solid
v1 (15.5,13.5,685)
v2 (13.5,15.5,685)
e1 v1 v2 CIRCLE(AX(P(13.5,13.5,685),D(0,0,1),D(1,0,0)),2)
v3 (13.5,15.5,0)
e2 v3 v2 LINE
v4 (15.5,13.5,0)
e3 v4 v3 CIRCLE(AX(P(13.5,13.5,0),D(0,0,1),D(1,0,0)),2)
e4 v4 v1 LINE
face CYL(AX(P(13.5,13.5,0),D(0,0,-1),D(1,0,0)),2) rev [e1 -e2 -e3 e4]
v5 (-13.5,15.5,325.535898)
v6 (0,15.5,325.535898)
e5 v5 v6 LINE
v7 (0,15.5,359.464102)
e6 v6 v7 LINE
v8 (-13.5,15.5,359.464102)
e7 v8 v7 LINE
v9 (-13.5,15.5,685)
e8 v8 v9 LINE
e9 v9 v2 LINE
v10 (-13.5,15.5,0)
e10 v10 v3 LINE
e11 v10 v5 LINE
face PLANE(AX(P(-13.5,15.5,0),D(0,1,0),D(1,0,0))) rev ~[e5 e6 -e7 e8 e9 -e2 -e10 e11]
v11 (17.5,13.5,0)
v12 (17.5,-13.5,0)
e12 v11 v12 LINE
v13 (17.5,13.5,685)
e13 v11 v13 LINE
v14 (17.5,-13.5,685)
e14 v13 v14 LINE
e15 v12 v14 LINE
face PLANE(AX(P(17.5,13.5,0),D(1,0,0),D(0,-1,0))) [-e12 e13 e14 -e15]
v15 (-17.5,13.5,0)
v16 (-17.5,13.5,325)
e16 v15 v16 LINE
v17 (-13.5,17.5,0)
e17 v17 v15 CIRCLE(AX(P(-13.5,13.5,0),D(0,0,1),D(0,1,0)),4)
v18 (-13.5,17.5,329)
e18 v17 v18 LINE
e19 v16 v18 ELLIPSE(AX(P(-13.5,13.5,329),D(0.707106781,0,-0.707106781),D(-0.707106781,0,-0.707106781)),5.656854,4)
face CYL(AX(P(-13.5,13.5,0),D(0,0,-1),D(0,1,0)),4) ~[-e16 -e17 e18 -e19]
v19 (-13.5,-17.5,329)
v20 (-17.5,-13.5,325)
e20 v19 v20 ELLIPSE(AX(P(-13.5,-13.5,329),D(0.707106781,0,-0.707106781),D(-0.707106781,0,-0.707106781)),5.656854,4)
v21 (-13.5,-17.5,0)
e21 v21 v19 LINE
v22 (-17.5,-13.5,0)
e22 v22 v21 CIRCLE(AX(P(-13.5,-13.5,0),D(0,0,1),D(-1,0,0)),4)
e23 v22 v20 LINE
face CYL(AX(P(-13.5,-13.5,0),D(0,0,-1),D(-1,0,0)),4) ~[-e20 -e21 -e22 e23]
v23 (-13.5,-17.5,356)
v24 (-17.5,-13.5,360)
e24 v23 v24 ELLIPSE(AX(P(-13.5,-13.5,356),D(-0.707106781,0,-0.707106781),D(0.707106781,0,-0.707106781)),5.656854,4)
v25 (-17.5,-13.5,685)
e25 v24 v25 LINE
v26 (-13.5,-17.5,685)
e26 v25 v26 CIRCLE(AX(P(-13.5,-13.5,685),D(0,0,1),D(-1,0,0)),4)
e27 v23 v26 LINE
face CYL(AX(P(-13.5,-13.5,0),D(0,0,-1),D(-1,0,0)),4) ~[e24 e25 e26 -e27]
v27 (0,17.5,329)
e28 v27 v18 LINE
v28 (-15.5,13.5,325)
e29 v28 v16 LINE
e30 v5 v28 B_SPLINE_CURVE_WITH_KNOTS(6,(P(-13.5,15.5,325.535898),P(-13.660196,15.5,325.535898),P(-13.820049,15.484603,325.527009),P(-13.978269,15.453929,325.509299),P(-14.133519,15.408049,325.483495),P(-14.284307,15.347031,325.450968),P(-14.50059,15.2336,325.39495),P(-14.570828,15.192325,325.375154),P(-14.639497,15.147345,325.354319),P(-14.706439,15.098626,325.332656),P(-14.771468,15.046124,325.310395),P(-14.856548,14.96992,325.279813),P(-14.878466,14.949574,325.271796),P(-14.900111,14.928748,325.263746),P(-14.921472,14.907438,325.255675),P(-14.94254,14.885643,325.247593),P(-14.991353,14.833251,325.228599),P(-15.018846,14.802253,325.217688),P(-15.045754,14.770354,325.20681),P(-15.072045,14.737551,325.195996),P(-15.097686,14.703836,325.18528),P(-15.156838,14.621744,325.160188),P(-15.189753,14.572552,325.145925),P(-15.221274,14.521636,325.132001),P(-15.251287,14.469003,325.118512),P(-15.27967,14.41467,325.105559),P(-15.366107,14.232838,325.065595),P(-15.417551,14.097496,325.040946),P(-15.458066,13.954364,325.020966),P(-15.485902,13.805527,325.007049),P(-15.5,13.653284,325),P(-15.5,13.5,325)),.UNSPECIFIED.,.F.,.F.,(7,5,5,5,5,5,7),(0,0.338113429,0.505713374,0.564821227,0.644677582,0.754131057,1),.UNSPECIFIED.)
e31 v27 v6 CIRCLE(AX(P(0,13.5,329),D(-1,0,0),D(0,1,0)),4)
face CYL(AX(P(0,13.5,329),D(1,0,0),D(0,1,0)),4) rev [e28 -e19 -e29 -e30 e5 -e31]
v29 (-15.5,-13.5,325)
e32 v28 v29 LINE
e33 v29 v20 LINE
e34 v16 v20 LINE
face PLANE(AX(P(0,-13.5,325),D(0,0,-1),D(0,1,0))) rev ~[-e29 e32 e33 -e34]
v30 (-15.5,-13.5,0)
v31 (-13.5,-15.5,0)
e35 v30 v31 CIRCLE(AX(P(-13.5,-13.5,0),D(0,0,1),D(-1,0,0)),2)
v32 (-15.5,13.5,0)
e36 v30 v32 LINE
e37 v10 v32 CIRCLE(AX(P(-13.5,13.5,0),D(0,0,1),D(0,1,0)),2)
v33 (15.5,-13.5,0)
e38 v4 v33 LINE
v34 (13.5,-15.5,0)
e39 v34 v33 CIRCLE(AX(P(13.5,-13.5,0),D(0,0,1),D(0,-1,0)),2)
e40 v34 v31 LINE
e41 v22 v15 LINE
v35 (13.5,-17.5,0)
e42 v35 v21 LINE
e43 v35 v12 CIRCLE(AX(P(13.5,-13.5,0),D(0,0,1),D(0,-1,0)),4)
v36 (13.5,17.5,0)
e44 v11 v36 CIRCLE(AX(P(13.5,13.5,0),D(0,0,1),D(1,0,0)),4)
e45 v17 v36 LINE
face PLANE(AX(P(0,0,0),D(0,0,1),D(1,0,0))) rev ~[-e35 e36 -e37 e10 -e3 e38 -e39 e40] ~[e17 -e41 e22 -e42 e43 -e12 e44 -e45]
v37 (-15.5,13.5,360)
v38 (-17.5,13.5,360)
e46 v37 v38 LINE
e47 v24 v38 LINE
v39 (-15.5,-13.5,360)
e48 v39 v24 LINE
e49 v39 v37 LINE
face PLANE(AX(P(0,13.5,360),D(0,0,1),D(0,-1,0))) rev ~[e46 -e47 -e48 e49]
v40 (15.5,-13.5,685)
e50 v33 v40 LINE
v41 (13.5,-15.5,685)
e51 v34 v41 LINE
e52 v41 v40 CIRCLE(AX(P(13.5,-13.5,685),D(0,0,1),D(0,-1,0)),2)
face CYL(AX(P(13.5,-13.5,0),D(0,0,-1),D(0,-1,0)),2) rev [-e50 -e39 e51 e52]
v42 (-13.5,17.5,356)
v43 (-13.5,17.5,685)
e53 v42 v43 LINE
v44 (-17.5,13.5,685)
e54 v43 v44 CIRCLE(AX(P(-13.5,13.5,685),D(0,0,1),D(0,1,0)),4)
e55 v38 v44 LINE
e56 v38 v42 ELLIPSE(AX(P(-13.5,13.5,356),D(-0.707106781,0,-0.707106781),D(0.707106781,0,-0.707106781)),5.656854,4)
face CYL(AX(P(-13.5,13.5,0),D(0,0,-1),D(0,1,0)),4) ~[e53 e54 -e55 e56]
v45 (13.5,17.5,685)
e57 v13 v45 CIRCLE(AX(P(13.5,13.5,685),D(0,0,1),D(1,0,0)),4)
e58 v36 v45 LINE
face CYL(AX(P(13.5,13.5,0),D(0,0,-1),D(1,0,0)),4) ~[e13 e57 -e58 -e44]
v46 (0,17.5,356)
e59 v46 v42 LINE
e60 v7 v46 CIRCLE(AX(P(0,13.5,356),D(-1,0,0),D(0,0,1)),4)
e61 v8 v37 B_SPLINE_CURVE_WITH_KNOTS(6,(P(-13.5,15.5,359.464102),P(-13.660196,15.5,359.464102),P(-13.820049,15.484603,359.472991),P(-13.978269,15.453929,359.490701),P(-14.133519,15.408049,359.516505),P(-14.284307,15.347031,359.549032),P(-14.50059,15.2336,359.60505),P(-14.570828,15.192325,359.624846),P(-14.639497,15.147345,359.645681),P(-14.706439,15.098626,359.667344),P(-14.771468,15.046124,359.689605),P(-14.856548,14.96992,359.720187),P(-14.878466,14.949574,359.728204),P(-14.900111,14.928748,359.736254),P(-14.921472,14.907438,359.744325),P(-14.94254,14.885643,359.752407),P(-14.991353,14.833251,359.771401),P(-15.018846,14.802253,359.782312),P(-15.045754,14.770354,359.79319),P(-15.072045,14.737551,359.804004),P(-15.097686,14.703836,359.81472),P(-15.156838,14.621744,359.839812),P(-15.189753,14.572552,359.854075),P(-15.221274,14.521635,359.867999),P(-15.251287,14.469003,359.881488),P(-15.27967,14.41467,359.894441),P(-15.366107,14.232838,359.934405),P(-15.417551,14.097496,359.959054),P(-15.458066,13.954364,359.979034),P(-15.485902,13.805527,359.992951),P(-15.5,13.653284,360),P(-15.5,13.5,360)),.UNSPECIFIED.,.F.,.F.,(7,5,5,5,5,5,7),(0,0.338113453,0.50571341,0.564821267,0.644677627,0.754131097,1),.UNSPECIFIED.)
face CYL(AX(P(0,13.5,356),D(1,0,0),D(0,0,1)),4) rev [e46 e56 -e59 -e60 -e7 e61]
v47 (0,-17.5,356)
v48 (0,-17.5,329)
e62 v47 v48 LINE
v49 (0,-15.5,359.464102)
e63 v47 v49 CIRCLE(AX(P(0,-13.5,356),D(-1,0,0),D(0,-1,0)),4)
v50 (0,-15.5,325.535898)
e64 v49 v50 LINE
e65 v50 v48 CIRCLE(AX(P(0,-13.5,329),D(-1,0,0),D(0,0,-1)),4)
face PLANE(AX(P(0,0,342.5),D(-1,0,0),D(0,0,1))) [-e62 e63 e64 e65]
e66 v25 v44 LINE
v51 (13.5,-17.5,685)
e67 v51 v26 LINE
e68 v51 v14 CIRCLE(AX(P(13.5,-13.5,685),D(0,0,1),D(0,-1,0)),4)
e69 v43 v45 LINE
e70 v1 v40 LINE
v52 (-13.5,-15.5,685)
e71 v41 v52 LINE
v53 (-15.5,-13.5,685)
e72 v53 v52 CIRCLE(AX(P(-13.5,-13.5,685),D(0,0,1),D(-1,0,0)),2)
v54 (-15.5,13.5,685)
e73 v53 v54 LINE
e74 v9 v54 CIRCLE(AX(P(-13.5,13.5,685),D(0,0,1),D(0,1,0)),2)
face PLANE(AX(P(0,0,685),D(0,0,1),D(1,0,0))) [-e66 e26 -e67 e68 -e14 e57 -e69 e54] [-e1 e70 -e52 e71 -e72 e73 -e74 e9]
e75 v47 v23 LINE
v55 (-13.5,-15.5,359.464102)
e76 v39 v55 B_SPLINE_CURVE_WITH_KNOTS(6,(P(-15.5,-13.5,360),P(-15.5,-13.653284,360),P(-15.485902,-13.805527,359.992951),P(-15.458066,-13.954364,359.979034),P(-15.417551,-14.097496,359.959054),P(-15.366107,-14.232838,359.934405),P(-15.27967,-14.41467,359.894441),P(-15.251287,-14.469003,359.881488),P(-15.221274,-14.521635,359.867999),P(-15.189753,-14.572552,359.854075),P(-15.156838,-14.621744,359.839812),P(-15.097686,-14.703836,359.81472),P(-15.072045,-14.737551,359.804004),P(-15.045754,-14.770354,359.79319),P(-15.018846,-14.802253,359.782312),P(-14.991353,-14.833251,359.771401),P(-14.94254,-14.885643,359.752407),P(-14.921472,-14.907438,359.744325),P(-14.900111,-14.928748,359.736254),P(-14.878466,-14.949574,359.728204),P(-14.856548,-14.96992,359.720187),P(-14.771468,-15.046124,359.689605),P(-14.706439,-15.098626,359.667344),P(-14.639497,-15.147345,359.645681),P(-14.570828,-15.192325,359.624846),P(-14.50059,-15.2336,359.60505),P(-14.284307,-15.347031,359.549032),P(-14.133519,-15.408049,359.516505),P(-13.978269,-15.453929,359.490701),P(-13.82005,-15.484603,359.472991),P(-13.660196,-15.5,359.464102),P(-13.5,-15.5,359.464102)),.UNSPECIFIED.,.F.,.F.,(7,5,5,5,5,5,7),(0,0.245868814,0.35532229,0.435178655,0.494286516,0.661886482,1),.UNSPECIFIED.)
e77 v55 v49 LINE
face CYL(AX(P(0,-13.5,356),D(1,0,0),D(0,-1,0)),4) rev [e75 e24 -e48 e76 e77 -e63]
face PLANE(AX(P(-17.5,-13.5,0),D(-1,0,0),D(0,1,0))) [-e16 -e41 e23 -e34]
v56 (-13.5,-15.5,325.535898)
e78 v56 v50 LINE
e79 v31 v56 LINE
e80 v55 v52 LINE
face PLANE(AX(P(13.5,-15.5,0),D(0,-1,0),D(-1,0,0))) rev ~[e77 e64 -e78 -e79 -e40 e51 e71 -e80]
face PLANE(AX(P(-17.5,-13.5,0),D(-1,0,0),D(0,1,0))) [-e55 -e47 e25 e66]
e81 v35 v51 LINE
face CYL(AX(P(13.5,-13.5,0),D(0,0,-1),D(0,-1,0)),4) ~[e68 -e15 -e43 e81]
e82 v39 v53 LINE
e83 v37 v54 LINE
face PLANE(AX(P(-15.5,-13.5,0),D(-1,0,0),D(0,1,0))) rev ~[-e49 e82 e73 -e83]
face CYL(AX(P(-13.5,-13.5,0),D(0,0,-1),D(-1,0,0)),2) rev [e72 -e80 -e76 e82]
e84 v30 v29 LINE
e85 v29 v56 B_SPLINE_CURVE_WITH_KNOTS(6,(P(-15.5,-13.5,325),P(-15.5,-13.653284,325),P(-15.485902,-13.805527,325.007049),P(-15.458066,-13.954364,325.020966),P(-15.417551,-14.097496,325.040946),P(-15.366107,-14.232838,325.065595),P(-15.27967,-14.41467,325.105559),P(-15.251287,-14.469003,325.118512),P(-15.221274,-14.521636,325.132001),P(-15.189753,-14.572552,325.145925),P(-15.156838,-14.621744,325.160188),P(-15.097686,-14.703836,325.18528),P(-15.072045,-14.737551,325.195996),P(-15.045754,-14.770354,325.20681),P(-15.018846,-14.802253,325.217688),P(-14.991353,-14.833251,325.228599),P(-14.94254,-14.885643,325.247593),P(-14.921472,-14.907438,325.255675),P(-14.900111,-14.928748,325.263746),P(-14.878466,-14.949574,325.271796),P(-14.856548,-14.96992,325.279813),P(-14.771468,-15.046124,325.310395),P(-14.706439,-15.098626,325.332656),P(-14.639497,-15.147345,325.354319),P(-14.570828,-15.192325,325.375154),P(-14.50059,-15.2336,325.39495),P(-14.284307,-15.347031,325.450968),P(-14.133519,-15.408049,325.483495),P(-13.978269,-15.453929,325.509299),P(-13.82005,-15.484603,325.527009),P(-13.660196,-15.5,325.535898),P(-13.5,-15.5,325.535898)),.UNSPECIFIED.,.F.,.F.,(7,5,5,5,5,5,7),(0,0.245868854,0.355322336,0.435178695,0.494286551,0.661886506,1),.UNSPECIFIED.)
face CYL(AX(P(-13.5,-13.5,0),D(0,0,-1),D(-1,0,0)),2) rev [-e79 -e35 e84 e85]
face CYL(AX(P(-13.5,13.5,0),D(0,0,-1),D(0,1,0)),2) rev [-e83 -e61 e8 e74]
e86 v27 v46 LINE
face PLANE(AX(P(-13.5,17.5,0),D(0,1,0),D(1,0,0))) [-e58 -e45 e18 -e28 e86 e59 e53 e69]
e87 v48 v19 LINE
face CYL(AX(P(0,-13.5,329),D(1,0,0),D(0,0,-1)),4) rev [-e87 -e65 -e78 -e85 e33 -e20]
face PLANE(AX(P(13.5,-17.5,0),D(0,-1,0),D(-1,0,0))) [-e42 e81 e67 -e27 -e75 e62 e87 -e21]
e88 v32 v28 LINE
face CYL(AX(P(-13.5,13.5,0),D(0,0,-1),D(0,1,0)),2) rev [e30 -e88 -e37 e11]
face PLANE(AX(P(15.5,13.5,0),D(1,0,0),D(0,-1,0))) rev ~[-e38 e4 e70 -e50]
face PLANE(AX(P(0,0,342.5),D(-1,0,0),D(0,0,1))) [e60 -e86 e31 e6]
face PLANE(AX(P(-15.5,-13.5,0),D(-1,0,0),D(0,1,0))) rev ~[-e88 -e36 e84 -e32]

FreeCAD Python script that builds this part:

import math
import FreeCAD as App
import Part
import Sketcher
Q = App.Units.Quantity

doc = App.newDocument("Part")
body = doc.addObject("PartDesign::Body", "Body")

# Sketch on XY plane
sketch1 = body.newObject("Sketcher::SketchObject", "Sketch")
sketch1.AttachmentSupport = (doc.getObject("XY_Plane"), [""])
sketch1.MapMode = "FlatFace"
sketch1.addGeometry([
    Part.LineSegment(App.Vector(-17.5, 13.5, 0), App.Vector(-17.5, -13.5, 0)),  # 0
    Part.ArcOfCircle(Part.Circle(App.Vector(-13.5, -13.5, 0), App.Vector(0, 0, 1), 4), math.radians(180), math.radians(270)),  # 1
    Part.LineSegment(App.Vector(-13.5, -17.5, 0), App.Vector(13.5, -17.5, 0)),  # 2
    Part.ArcOfCircle(Part.Circle(App.Vector(13.5, -13.5, 0), App.Vector(0, 0, 1), 4), math.radians(-90), math.radians(0)),  # 3
    Part.LineSegment(App.Vector(17.5, -13.5, 0), App.Vector(17.5, 13.5, 0)),  # 4
    Part.ArcOfCircle(Part.Circle(App.Vector(13.5, 13.5, 0), App.Vector(0, 0, 1), 4), math.radians(0), math.radians(90)),  # 5
    Part.LineSegment(App.Vector(13.5, 17.5, 0), App.Vector(-13.5, 17.5, 0)),  # 6
    Part.ArcOfCircle(Part.Circle(App.Vector(-13.5, 13.5, 0), App.Vector(0, 0, 1), 4), math.radians(90), math.radians(180)),  # 7
    Part.ArcOfCircle(Part.Circle(App.Vector(-13.5, 13.5, 0), App.Vector(0, 0, 1), 2), math.radians(90), math.radians(180)),  # 8
    Part.LineSegment(App.Vector(-13.5, 15.5, 0), App.Vector(13.5, 15.5, 0)),  # 9
    Part.ArcOfCircle(Part.Circle(App.Vector(13.5, 13.5, 0), App.Vector(0, 0, 1), 2), math.radians(0), math.radians(90)),  # 10
    Part.LineSegment(App.Vector(15.5, 13.5, 0), App.Vector(15.5, -13.5, 0)),  # 11
    Part.ArcOfCircle(Part.Circle(App.Vector(13.5, -13.5, 0), App.Vector(0, 0, 1), 2), math.radians(-90), math.radians(0)),  # 12
    Part.LineSegment(App.Vector(13.5, -15.5, 0), App.Vector(-13.5, -15.5, 0)),  # 13
    Part.ArcOfCircle(Part.Circle(App.Vector(-13.5, -13.5, 0), App.Vector(0, 0, 1), 2), math.radians(180), math.radians(270)),  # 14
    Part.LineSegment(App.Vector(-15.5, -13.5, 0), App.Vector(-15.5, 13.5, 0)),  # 15
], False)
sketch1.addConstraint([
    Sketcher.Constraint("Tangent", 0, 2, 1, 1),
    Sketcher.Constraint("Tangent", 1, 2, 2, 1),
    Sketcher.Constraint("Tangent", 2, 2, 3, 1),
    Sketcher.Constraint("Tangent", 3, 2, 4, 1),
    Sketcher.Constraint("Tangent", 4, 2, 5, 1),
    Sketcher.Constraint("Tangent", 5, 2, 6, 1),
    Sketcher.Constraint("Tangent", 6, 2, 7, 1),
    Sketcher.Constraint("Tangent", 7, 2, 0, 1),
    Sketcher.Constraint("Tangent", 8, 1, 9, 1),
    Sketcher.Constraint("Tangent", 9, 2, 10, 2),
    Sketcher.Constraint("Tangent", 10, 1, 11, 1),
    Sketcher.Constraint("Tangent", 11, 2, 12, 2),
    Sketcher.Constraint("Tangent", 12, 1, 13, 1),
    Sketcher.Constraint("Tangent", 13, 2, 14, 2),
    Sketcher.Constraint("Tangent", 14, 1, 15, 1),
    Sketcher.Constraint("Tangent", 15, 2, 8, 2),
    Sketcher.Constraint("Vertical", 0),
    Sketcher.Constraint("Horizontal", 2),
    Sketcher.Constraint("Vertical", 4),
    Sketcher.Constraint("Horizontal", 6),
    Sketcher.Constraint("Horizontal", 9),
    Sketcher.Constraint("Vertical", 11),
    Sketcher.Constraint("Horizontal", 13),
    Sketcher.Constraint("Vertical", 15),
    Sketcher.Constraint("Coincident", 8, 3, 7, 3),
    Sketcher.Constraint("Coincident", 10, 3, 5, 3),
    Sketcher.Constraint("Coincident", 12, 3, 3, 3),
    Sketcher.Constraint("Equal", 1, 3),
    Sketcher.Constraint("Equal", 3, 5),
    Sketcher.Constraint("Equal", 5, 7),
    Sketcher.Constraint("Equal", 12, 14),
    Sketcher.Constraint("Symmetric", 1, 3, 5, 3, -1, 1),
    Sketcher.Constraint("Equal", 13, 0),
    Sketcher.Constraint("Radius", 1, Q("4 mm")),
    Sketcher.Constraint("Radius", 8, Q("2 mm")),
    Sketcher.Constraint("DistanceX", 0, 2, -1, 1, Q("17.5 mm")),
])
pad1 = body.newObject("PartDesign::Pad", "Pad")
pad1.Profile = sketch1
pad1.Length = 685

# Sketch on YZ plane
sketch2 = body.newObject("Sketcher::SketchObject", "Sketch001")
sketch2.AttachmentSupport = (doc.getObject("YZ_Plane"), [""])
sketch2.MapMode = "FlatFace"
sketch2.addGeometry([
    Part.LineSegment(App.Vector(13.5, 325, 0), App.Vector(-13.5, 325, 0)),  # 0
    Part.ArcOfCircle(Part.Circle(App.Vector(-13.5, 329, 0), App.Vector(0, 0, 1), 4), math.radians(180), math.radians(270)),  # 1
    Part.LineSegment(App.Vector(-17.5, 329, 0), App.Vector(-17.5, 356, 0)),  # 2
    Part.ArcOfCircle(Part.Circle(App.Vector(-13.5, 356, 0), App.Vector(0, 0, 1), 4), math.radians(90), math.radians(180)),  # 3
    Part.LineSegment(App.Vector(-13.5, 360, 0), App.Vector(13.5, 360, 0)),  # 4
    Part.ArcOfCircle(Part.Circle(App.Vector(13.5, 356, 0), App.Vector(0, 0, 1), 4), math.radians(0), math.radians(90)),  # 5
    Part.LineSegment(App.Vector(17.5, 356, 0), App.Vector(17.5, 329, 0)),  # 6
    Part.ArcOfCircle(Part.Circle(App.Vector(13.5, 329, 0), App.Vector(0, 0, 1), 4), math.radians(-90), math.radians(0)),  # 7
], False)
sketch2.addConstraint([
    Sketcher.Constraint("Tangent", 0, 2, 1, 2),
    Sketcher.Constraint("Tangent", 1, 1, 2, 1),
    Sketcher.Constraint("Tangent", 2, 2, 3, 2),
    Sketcher.Constraint("Tangent", 3, 1, 4, 1),
    Sketcher.Constraint("Tangent", 4, 2, 5, 2),
    Sketcher.Constraint("Tangent", 5, 1, 6, 1),
    Sketcher.Constraint("Tangent", 6, 2, 7, 2),
    Sketcher.Constraint("Tangent", 7, 1, 0, 1),
    Sketcher.Constraint("Horizontal", 0),
    Sketcher.Constraint("Vertical", 2),
    Sketcher.Constraint("Horizontal", 4),
    Sketcher.Constraint("Vertical", 6),
    Sketcher.Constraint("Equal", 1, 3),
    Sketcher.Constraint("Equal", 3, 5),
    Sketcher.Constraint("Equal", 5, 7),
    Sketcher.Constraint("Equal", 4, 2),
    Sketcher.Constraint("Radius", 1, Q("4 mm")),
    Sketcher.Constraint("DistanceX", 0, 2, 0, 1, Q("27 mm")),
    Sketcher.Constraint("DistanceY", -1, 1, 1, 3, Q("329 mm")),
    Sketcher.Constraint("DistanceX", 1, 3, -1, 1, Q("13.5 mm")),
])
pocket1 = body.newObject("PartDesign::Pocket", "Pocket")
pocket1.Profile = sketch2
pocket1.Length = 395

doc.recompute()
